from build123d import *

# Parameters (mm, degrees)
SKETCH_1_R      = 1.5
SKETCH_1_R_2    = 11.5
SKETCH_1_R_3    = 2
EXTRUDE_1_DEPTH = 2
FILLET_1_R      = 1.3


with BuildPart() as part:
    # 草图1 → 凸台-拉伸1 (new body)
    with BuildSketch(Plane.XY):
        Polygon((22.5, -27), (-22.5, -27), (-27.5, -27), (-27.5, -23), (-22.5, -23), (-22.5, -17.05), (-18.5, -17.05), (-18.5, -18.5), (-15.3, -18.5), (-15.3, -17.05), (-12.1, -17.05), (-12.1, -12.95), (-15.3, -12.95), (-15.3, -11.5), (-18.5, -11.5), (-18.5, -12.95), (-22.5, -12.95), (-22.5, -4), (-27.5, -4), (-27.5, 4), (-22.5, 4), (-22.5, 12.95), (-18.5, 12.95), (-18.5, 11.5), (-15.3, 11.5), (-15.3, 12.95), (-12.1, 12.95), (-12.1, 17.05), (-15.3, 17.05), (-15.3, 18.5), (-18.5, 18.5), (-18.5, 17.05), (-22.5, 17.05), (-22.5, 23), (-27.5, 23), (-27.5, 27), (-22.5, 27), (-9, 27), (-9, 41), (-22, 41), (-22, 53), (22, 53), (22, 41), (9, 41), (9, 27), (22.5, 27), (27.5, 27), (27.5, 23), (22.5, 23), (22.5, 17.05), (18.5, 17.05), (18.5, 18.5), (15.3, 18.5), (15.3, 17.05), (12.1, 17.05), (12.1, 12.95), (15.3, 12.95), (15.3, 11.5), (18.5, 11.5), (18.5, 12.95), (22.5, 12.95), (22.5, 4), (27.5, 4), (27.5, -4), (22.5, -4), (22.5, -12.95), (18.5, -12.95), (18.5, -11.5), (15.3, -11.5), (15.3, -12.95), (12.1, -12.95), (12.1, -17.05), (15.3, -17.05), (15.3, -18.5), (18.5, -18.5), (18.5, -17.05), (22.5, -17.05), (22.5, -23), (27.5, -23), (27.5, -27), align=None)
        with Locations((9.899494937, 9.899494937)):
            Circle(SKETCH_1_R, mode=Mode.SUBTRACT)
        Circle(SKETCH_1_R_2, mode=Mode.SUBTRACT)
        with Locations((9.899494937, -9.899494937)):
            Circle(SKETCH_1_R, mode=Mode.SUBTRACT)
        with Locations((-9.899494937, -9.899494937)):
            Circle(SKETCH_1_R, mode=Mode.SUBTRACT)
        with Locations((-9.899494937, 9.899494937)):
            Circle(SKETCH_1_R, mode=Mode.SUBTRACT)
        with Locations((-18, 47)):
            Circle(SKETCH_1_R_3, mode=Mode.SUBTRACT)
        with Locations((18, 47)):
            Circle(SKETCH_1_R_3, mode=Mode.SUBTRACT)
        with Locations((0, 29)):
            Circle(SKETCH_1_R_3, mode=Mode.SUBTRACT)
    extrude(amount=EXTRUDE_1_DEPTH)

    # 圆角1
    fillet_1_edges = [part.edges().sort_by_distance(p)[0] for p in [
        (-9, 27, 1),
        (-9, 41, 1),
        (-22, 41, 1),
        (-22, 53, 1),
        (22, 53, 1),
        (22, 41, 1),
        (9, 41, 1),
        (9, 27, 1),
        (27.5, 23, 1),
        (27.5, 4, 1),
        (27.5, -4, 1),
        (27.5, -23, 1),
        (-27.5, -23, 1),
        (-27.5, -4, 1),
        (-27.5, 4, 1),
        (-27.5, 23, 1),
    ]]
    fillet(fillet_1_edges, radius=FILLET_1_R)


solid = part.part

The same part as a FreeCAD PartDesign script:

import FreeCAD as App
import Part
import Sketcher
from FreeCAD import Vector
Q = App.Units.Quantity


def edges_at(feature, points):
    """Names of the edges that pass closest to the given points."""
    edges = feature.Shape.Edges
    near = lambda p: min(range(len(edges)), key=lambda i: edges[i].distToShape(Part.Vertex(*p))[0])
    return sorted({f"Edge{near(p) + 1}" for p in points})

doc = App.newDocument("Part")
body = doc.addObject("PartDesign::Body", "Body")

# Sketch on XY plane
sketch1 = body.newObject("Sketcher::SketchObject", "Sketch")
sketch1.AttachmentSupport = (doc.getObject("XY_Plane"), [""])
sketch1.MapMode = "FlatFace"
sketch1.addGeometry([
    Part.LineSegment(Vector(-27.5, -27, 0), Vector(27.5, -27, 0)),  # 0
    Part.LineSegment(Vector(27.5, -27, 0), Vector(27.5, -23, 0)),  # 1
    Part.LineSegment(Vector(27.5, -23, 0), Vector(22.5, -23, 0)),  # 2
    Part.LineSegment(Vector(22.5, -23, 0), Vector(22.5, -17.1, 0)),  # 3
    Part.LineSegment(Vector(22.5, -17.1, 0), Vector(18.5, -17.1, 0)),  # 4
    Part.LineSegment(Vector(18.5, -17.1, 0), Vector(18.5, -18.5, 0)),  # 5
    Part.LineSegment(Vector(18.5, -18.5, 0), Vector(15.3, -18.5, 0)),  # 6
    Part.LineSegment(Vector(15.3, -18.5, 0), Vector(15.3, -17.1, 0)),  # 7
    Part.LineSegment(Vector(15.3, -17.1, 0), Vector(12.1, -17.1, 0)),  # 8
    Part.LineSegment(Vector(12.1, -17.1, 0), Vector(12.1, -12.9, 0)),  # 9
    Part.LineSegment(Vector(12.1, -12.9, 0), Vector(15.3, -12.9, 0)),  # 10
    Part.LineSegment(Vector(15.3, -12.9, 0), Vector(15.3, -11.5, 0)),  # 11
    Part.LineSegment(Vector(15.3, -11.5, 0), Vector(18.5, -11.5, 0)),  # 12
    Part.LineSegment(Vector(18.5, -11.5, 0), Vector(18.5, -12.9, 0)),  # 13
    Part.LineSegment(Vector(18.5, -12.9, 0), Vector(22.5, -12.9, 0)),  # 14
    Part.LineSegment(Vector(22.5, -12.9, 0), Vector(22.5, -4, 0)),  # 15
    Part.LineSegment(Vector(22.5, -4, 0), Vector(27.5, -4, 0)),  # 16
    Part.LineSegment(Vector(27.5, -4, 0), Vector(27.5, 4, 0)),  # 17
    Part.LineSegment(Vector(27.5, 4, 0), Vector(22.5, 4, 0)),  # 18
    Part.LineSegment(Vector(22.5, 4, 0), Vector(22.5, 12.9, 0)),  # 19
    Part.LineSegment(Vector(22.5, 12.9, 0), Vector(18.5, 12.9, 0)),  # 20
    Part.LineSegment(Vector(18.5, 12.9, 0), Vector(18.5, 11.5, 0)),  # 21
    Part.LineSegment(Vector(18.5, 11.5, 0), Vector(15.3, 11.5, 0)),  # 22
    Part.LineSegment(Vector(15.3, 11.5, 0), Vector(15.3, 12.9, 0)),  # 23
    Part.LineSegment(Vector(15.3, 12.9, 0), Vector(12.1, 12.9, 0)),  # 24
    Part.LineSegment(Vector(12.1, 12.9, 0), Vector(12.1, 17.1, 0)),  # 25
    Part.LineSegment(Vector(12.1, 17.1, 0), Vector(15.3, 17.1, 0)),  # 26
    Part.LineSegment(Vector(15.3, 17.1, 0), Vector(15.3, 18.5, 0)),  # 27
    Part.LineSegment(Vector(15.3, 18.5, 0), Vector(18.5, 18.5, 0)),  # 28
    Part.LineSegment(Vector(18.5, 18.5, 0), Vector(18.5, 17.1, 0)),  # 29
    Part.LineSegment(Vector(18.5, 17.1, 0), Vector(22.5, 17.1, 0)),  # 30
    Part.LineSegment(Vector(22.5, 17.1, 0), Vector(22.5, 23, 0)),  # 31
    Part.LineSegment(Vector(22.5, 23, 0), Vector(27.5, 23, 0)),  # 32
    Part.LineSegment(Vector(27.5, 23, 0), Vector(27.5, 27, 0)),  # 33
    Part.LineSegment(Vector(27.5, 27, 0), Vector(9, 27, 0)),  # 34
    Part.LineSegment(Vector(9, 27, 0), Vector(9, 41, 0)),  # 35
    Part.LineSegment(Vector(9, 41, 0), Vector(22, 41, 0)),  # 36
    Part.LineSegment(Vector(22, 41, 0), Vector(22, 53, 0)),  # 37
    Part.LineSegment(Vector(22, 53, 0), Vector(-22, 53, 0)),  # 38
    Part.LineSegment(Vector(-22, 53, 0), Vector(-22, 41, 0)),  # 39
    Part.LineSegment(Vector(-22, 41, 0), Vector(-9, 41, 0)),  # 40
    Part.LineSegment(Vector(-9, 41, 0), Vector(-9, 27, 0)),  # 41
    Part.LineSegment(Vector(-9, 27, 0), Vector(-27.5, 27, 0)),  # 42
    Part.LineSegment(Vector(-27.5, 27, 0), Vector(-27.5, 23, 0)),  # 43
    Part.LineSegment(Vector(-27.5, 23, 0), Vector(-22.5, 23, 0)),  # 44
    Part.LineSegment(Vector(-22.5, 23, 0), Vector(-22.5, 17.1, 0)),  # 45
    Part.LineSegment(Vector(-22.5, 17.1, 0), Vector(-18.5, 17.1, 0)),  # 46
    Part.LineSegment(Vector(-18.5, 17.1, 0), Vector(-18.5, 18.5, 0)),  # 47
    Part.LineSegment(Vector(-18.5, 18.5, 0), Vector(-15.3, 18.5, 0)),  # 48
    Part.LineSegment(Vector(-15.3, 18.5, 0), Vector(-15.3, 17.1, 0)),  # 49
    Part.LineSegment(Vector(-15.3, 17.1, 0), Vector(-12.1, 17.1, 0)),  # 50
    Part.LineSegment(Vector(-12.1, 17.1, 0), Vector(-12.1, 12.9, 0)),  # 51
    Part.LineSegment(Vector(-12.1, 12.9, 0), Vector(-15.3, 12.9, 0)),  # 52
    Part.LineSegment(Vector(-15.3, 12.9, 0), Vector(-15.3, 11.5, 0)),  # 53
    Part.LineSegment(Vector(-15.3, 11.5, 0), Vector(-18.5, 11.5, 0)),  # 54
    Part.LineSegment(Vector(-18.5, 11.5, 0), Vector(-18.5, 12.9, 0)),  # 55
    Part.LineSegment(Vector(-18.5, 12.9, 0), Vector(-22.5, 12.9, 0)),  # 56
    Part.LineSegment(Vector(-22.5, 12.9, 0), Vector(-22.5, 4, 0)),  # 57
    Part.LineSegment(Vector(-22.5, 4, 0), Vector(-27.5, 4, 0)),  # 58
    Part.LineSegment(Vector(-27.5, 4, 0), Vector(-27.5, -4, 0)),  # 59
    Part.LineSegment(Vector(-27.5, -4, 0), Vector(-22.5, -4, 0)),  # 60
    Part.LineSegment(Vector(-22.5, -4, 0), Vector(-22.5, -12.9, 0)),  # 61
    Part.LineSegment(Vector(-22.5, -12.9, 0), Vector(-18.5, -12.9, 0)),  # 62
    Part.LineSegment(Vector(-18.5, -12.9, 0), Vector(-18.5, -11.5, 0)),  # 63
    Part.LineSegment(Vector(-18.5, -11.5, 0), Vector(-15.3, -11.5, 0)),  # 64
    Part.LineSegment(Vector(-15.3, -11.5, 0), Vector(-15.3, -12.9, 0)),  # 65
    Part.LineSegment(Vector(-15.3, -12.9, 0), Vector(-12.1, -12.9, 0)),  # 66
    Part.LineSegment(Vector(-12.1, -12.9, 0), Vector(-12.1, -17.1, 0)),  # 67
    Part.LineSegment(Vector(-12.1, -17.1, 0), Vector(-15.3, -17.1, 0)),  # 68
    Part.LineSegment(Vector(-15.3, -17.1, 0), Vector(-15.3, -18.5, 0)),  # 69
    Part.LineSegment(Vector(-15.3, -18.5, 0), Vector(-18.5, -18.5, 0)),  # 70
    Part.LineSegment(Vector(-18.5, -18.5, 0), Vector(-18.5, -17.1, 0)),  # 71
    Part.LineSegment(Vector(-18.5, -17.1, 0), Vector(-22.5, -17.1, 0)),  # 72
    Part.LineSegment(Vector(-22.5, -17.1, 0), Vector(-22.5, -23, 0)),  # 73
    Part.LineSegment(Vector(-22.5, -23, 0), Vector(-27.5, -23, 0)),  # 74
    Part.LineSegment(Vector(-27.5, -23, 0), Vector(-27.5, -27, 0)),  # 75
    Part.Circle(Vector(9.9, -9.9, 0), Vector(0, 0, 1), 1.5),  # 76
    Part.Circle(Vector(9.9, 9.9, 0), Vector(0, 0, 1), 1.5),  # 77
    Part.Circle(Vector(-9.9, -9.9, 0), Vector(0, 0, 1), 1.5),  # 78
    Part.Circle(Vector(0, 0, 0), Vector(0, 0, 1), 11.5),  # 79
    Part.Circle(Vector(-9.9, 9.9, 0), Vector(0, 0, 1), 1.5),  # 80
    Part.Circle(Vector(18, 47, 0), Vector(0, 0, 1), 2),  # 81
    Part.Circle(Vector(0, 29, 0), Vector(0, 0, 1), 2),  # 82
    Part.Circle(Vector(-18, 47, 0), Vector(0, 0, 1), 2),  # 83
], False)
sketch1.addConstraint([
    Sketcher.Constraint("Coincident", 0, 2, 1, 1),
    Sketcher.Constraint("Coincident", 1, 2, 2, 1),
    Sketcher.Constraint("Coincident", 2, 2, 3, 1),
    Sketcher.Constraint("Coincident", 3, 2, 4, 1),
    Sketcher.Constraint("Coincident", 4, 2, 5, 1),
    Sketcher.Constraint("Coincident", 5, 2, 6, 1),
    Sketcher.Constraint("Coincident", 6, 2, 7, 1),
    Sketcher.Constraint("Coincident", 7, 2, 8, 1),
    Sketcher.Constraint("Coincident", 8, 2, 9, 1),
    Sketcher.Constraint("Coincident", 9, 2, 10, 1),
    Sketcher.Constraint("Coincident", 10, 2, 11, 1),
    Sketcher.Constraint("Coincident", 11, 2, 12, 1),
    Sketcher.Constraint("Coincident", 12, 2, 13, 1),
    Sketcher.Constraint("Coincident", 13, 2, 14, 1),
    Sketcher.Constraint("Coincident", 14, 2, 15, 1),
    Sketcher.Constraint("Coincident", 15, 2, 16, 1),
    Sketcher.Constraint("Coincident", 16, 2, 17, 1),
    Sketcher.Constraint("Coincident", 17, 2, 18, 1),
    Sketcher.Constraint("Coincident", 18, 2, 19, 1),
    Sketcher.Constraint("Coincident", 19, 2, 20, 1),
    Sketcher.Constraint("Coincident", 20, 2, 21, 1),
    Sketcher.Constraint("Coincident", 21, 2, 22, 1),
    Sketcher.Constraint("Coincident", 22, 2, 23, 1),
    Sketcher.Constraint("Coincident", 23, 2, 24, 1),
    Sketcher.Constraint("Coincident", 24, 2, 25, 1),
    Sketcher.Constraint("Coincident", 25, 2, 26, 1),
    Sketcher.Constraint("Coincident", 26, 2, 27, 1),
    Sketcher.Constraint("Coincident", 27, 2, 28, 1),
    Sketcher.Constraint("Coincident", 28, 2, 29, 1),
    Sketcher.Constraint("Coincident", 29, 2, 30, 1),
    Sketcher.Constraint("Coincident", 30, 2, 31, 1),
    Sketcher.Constraint("Coincident", 31, 2, 32, 1),
    Sketcher.Constraint("Coincident", 32, 2, 33, 1),
    Sketcher.Constraint("Coincident", 33, 2, 34, 1),
    Sketcher.Constraint("Coincident", 34, 2, 35, 1),
    Sketcher.Constraint("Coincident", 35, 2, 36, 1),
    Sketcher.Constraint("Coincident", 36, 2, 37, 1),
    Sketcher.Constraint("Coincident", 37, 2, 38, 1),
    Sketcher.Constraint("Coincident", 38, 2, 39, 1),
    Sketcher.Constraint("Coincident", 39, 2, 40, 1),
    Sketcher.Constraint("Coincident", 40, 2, 41, 1),
    Sketcher.Constraint("Coincident", 41, 2, 42, 1),
    Sketcher.Constraint("Coincident", 42, 2, 43, 1),
    Sketcher.Constraint("Coincident", 43, 2, 44, 1),
    Sketcher.Constraint("Coincident", 44, 2, 45, 1),
    Sketcher.Constraint("Coincident", 45, 2, 46, 1),
    Sketcher.Constraint("Coincident", 46, 2, 47, 1),
    Sketcher.Constraint("Coincident", 47, 2, 48, 1),
    Sketcher.Constraint("Coincident", 48, 2, 49, 1),
    Sketcher.Constraint("Coincident", 49, 2, 50, 1),
    Sketcher.Constraint("Coincident", 50, 2, 51, 1),
    Sketcher.Constraint("Coincident", 51, 2, 52, 1),
    Sketcher.Constraint("Coincident", 52, 2, 53, 1),
    Sketcher.Constraint("Coincident", 53, 2, 54, 1),
    Sketcher.Constraint("Coincident", 54, 2, 55, 1),
    Sketcher.Constraint("Coincident", 55, 2, 56, 1),
    Sketcher.Constraint("Coincident", 56, 2, 57, 1),
    Sketcher.Constraint("Coincident", 57, 2, 58, 1),
    Sketcher.Constraint("Coincident", 58, 2, 59, 1),
    Sketcher.Constraint("Coincident", 59, 2, 60, 1),
    Sketcher.Constraint("Coincident", 60, 2, 61, 1),
    Sketcher.Constraint("Coincident", 61, 2, 62, 1),
    Sketcher.Constraint("Coincident", 62, 2, 63, 1),
    Sketcher.Constraint("Coincident", 63, 2, 64, 1),
    Sketcher.Constraint("Coincident", 64, 2, 65, 1),
    Sketcher.Constraint("Coincident", 65, 2, 66, 1),
    Sketcher.Constraint("Coincident", 66, 2, 67, 1),
    Sketcher.Constraint("Coincident", 67, 2, 68, 1),
    Sketcher.Constraint("Coincident", 68, 2, 69, 1),
    Sketcher.Constraint("Coincident", 69, 2, 70, 1),
    Sketcher.Constraint("Coincident", 70, 2, 71, 1),
    Sketcher.Constraint("Coincident", 71, 2, 72, 1),
    Sketcher.Constraint("Coincident", 72, 2, 73, 1),
    Sketcher.Constraint("Coincident", 73, 2, 74, 1),
    Sketcher.Constraint("Coincident", 74, 2, 75, 1),
    Sketcher.Constraint("Coincident", 75, 2, 0, 1),
    Sketcher.Constraint("Horizontal", 0),
    Sketcher.Constraint("Vertical", 1),
    Sketcher.Constraint("Horizontal", 2),
    Sketcher.Constraint("Vertical", 3),
    Sketcher.Constraint("Horizontal", 4),
    Sketcher.Constraint("Vertical", 5),
    Sketcher.Constraint("Horizontal", 6),
    Sketcher.Constraint("Vertical", 7),
    Sketcher.Constraint("Horizontal", 8),
    Sketcher.Constraint("Vertical", 9),
    Sketcher.Constraint("Horizontal", 10),
    Sketcher.Constraint("Vertical", 11),
    Sketcher.Constraint("Horizontal", 12),
    Sketcher.Constraint("Vertical", 13),
    Sketcher.Constraint("Horizontal", 14),
    Sketcher.Constraint("Vertical", 15),
    Sketcher.Constraint("Horizontal", 16),
    Sketcher.Constraint("Vertical", 17),
    Sketcher.Constraint("Horizontal", 18),
    Sketcher.Constraint("Vertical", 19),
    Sketcher.Constraint("Horizontal", 20),
    Sketcher.Constraint("Vertical", 21),
    Sketcher.Constraint("Horizontal", 22),
    Sketcher.Constraint("Vertical", 23),
    Sketcher.Constraint("Horizontal", 24),
    Sketcher.Constraint("Vertical", 25),
    Sketcher.Constraint("Horizontal", 26),
    Sketcher.Constraint("Vertical", 27),
    Sketcher.Constraint("Horizontal", 28),
    Sketcher.Constraint("Vertical", 29),
    Sketcher.Constraint("Horizontal", 30),
    Sketcher.Constraint("Vertical", 31),
    Sketcher.Constraint("Horizontal", 32),
    Sketcher.Constraint("Vertical", 33),
    Sketcher.Constraint("Horizontal", 34),
    Sketcher.Constraint("Vertical", 35),
    Sketcher.Constraint("Horizontal", 36),
    Sketcher.Constraint("Vertical", 37),
    Sketcher.Constraint("Horizontal", 38),
    Sketcher.Constraint("Vertical", 39),
    Sketcher.Constraint("Horizontal", 40),
    Sketcher.Constraint("Vertical", 41),
    Sketcher.Constraint("Horizontal", 42),
    Sketcher.Constraint("Vertical", 43),
    Sketcher.Constraint("Horizontal", 44),
    Sketcher.Constraint("Vertical", 45),
    Sketcher.Constraint("Horizontal", 46),
    Sketcher.Constraint("Vertical", 47),
    Sketcher.Constraint("Horizontal", 48),
    Sketcher.Constraint("Vertical", 49),
    Sketcher.Constraint("Horizontal", 50),
    Sketcher.Constraint("Vertical", 51),
    Sketcher.Constraint("Horizontal", 52),
    Sketcher.Constraint("Vertical", 53),
    Sketcher.Constraint("Horizontal", 54),
    Sketcher.Constraint("Vertical", 55),
    Sketcher.Constraint("Horizontal", 56),
    Sketcher.Constraint("Vertical", 57),
    Sketcher.Constraint("Horizontal", 58),
    Sketcher.Constraint("Vertical", 59),
    Sketcher.Constraint("Horizontal", 60),
    Sketcher.Constraint("Vertical", 61),
    Sketcher.Constraint("Horizontal", 62),
    Sketcher.Constraint("Vertical", 63),
    Sketcher.Constraint("Horizontal", 64),
    Sketcher.Constraint("Vertical", 65),
    Sketcher.Constraint("Horizontal", 66),
    Sketcher.Constraint("Vertical", 67),
    Sketcher.Constraint("Horizontal", 68),
    Sketcher.Constraint("Vertical", 69),
    Sketcher.Constraint("Horizontal", 70),
    Sketcher.Constraint("Vertical", 71),
    Sketcher.Constraint("Horizontal", 72),
    Sketcher.Constraint("Vertical", 73),
    Sketcher.Constraint("Horizontal", 74),
    Sketcher.Constraint("Vertical", 75),
    Sketcher.Constraint("Coincident", 79, 3, -1, 1),
    Sketcher.Constraint("Equal", 76, 77),
    Sketcher.Constraint("Equal", 77, 78),
    Sketcher.Constraint("Equal", 78, 80),
    Sketcher.Constraint("Equal", 81, 82),
    Sketcher.Constraint("Equal", 82, 83),
    Sketcher.Constraint("Symmetric", 77, 3, 78, 3, -1, 1),
    Sketcher.Constraint("Symmetric", 76, 3, 80, 3, -1, 1),
    Sketcher.Constraint("Symmetric", 0, 2, 42, 2, -1, 1),
    Sketcher.Constraint("Symmetric", 2, 2, 44, 2, -1, 1),
    Sketcher.Constraint("Symmetric", 4, 2, 46, 2, -1, 1),
    Sketcher.Constraint("Symmetric", 6, 2, 48, 2, -1, 1),
    Sketcher.Constraint("Symmetric", 8, 2, 50, 2, -1, 1),
    Sketcher.Constraint("Symmetric", 10, 2, 52, 2, -1, 1),
    Sketcher.Constraint("Symmetric", 12, 2, 54, 2, -1, 1),
    Sketcher.Constraint("Symmetric", 14, 2, 56, 2, -1, 1),
    Sketcher.Constraint("Symmetric", 16, 2, 58, 2, -1, 1),
    Sketcher.Constraint("Symmetric", 18, 2, 60, 2, -1, 1),
    Sketcher.Constraint("Symmetric", 20, 2, 62, 2, -1, 1),
    Sketcher.Constraint("Symmetric", 22, 2, 64, 2, -1, 1),
    Sketcher.Constraint("Symmetric", 24, 2, 66, 2, -1, 1),
    Sketcher.Constraint("Symmetric", 26, 2, 68, 2, -1, 1),
    Sketcher.Constraint("Symmetric", 28, 2, 70, 2, -1, 1),
    Sketcher.Constraint("Symmetric", 30, 2, 72, 2, -1, 1),
    Sketcher.Constraint("Symmetric", 32, 2, 74, 2, -1, 1),
    Sketcher.Constraint("Symmetric", 76, 3, 78, 3, -2),
    Sketcher.Constraint("Symmetric", 81, 3, 83, 3, -2),
    Sketcher.Constraint("Symmetric", 36, 2, 39, 2, -2),
    Sketcher.Constraint("Symmetric", 34, 2, 41, 2, -2),
    Sketcher.Constraint("Symmetric", 32, 2, 43, 2, -2),
    Sketcher.Constraint("Symmetric", 30, 2, 45, 2, -2),
    Sketcher.Constraint("Symmetric", 28, 2, 47, 2, -2),
    Sketcher.Constraint("Symmetric", 26, 2, 49, 2, -2),
    Sketcher.Constraint("Symmetric", 24, 2, 51, 2, -2),
    Sketcher.Constraint("Symmetric", 22, 2, 53, 2, -2),
    Sketcher.Constraint("Symmetric", 20, 2, 55, 2, -2),
    Sketcher.Constraint("Symmetric", 18, 2, 57, 2, -2),
    Sketcher.Constraint("PointOnObject", 82, 3, -2),
    Sketcher.Constraint("Horizontal", 4, 2, 7, 2),
    Sketcher.Constraint("Horizontal", 10, 2, 13, 2),
    Sketcher.Constraint("Vertical", 7, 2, 10, 2),
    Sketcher.Constraint("Vertical", 5, 2, 12, 2),
    Sketcher.Constraint("Vertical", 3, 2, 14, 2),
    Sketcher.Constraint("Vertical", 1, 2, 16, 2),
    Sketcher.Constraint("Equal", 6, 8),
    Sketcher.Constraint("Equal", 72, 1),
    Sketcher.Constraint("Equal", 7, 11),
    Sketcher.Constraint("Diameter", 76, Q("3 mm")),
    Sketcher.Constraint("Diameter", 79, Q("23 mm")),
    Sketcher.Constraint("Diameter", 81, Q("4 mm")),
    Sketcher.Constraint("DistanceX", 0, 1, 0, 2, Q("55 mm")),
    Sketcher.Constraint("DistanceX", 2, 2, 2, 1, Q("5 mm")),
    Sketcher.Constraint("DistanceX", 4, 2, 4, 1, Q("4 mm")),
    Sketcher.Constraint("DistanceX", 36, 1, 36, 2, Q("13 mm")),
    Sketcher.Constraint("DistanceX", 38, 2, 38, 1, Q("44 mm")),
    Sketcher.Constraint("DistanceY", 17, 1, 17, 2, Q("8 mm")),
    Sketcher.Constraint("DistanceY", 35, 1, 35, 2, Q("14 mm")),
    Sketcher.Constraint("DistanceY", 37, 1, 37, 2, Q("12 mm")),
    Sketcher.Constraint("DistanceX", 6, 2, 6, 1, Q("3.2 mm")),
    Sketcher.Constraint("DistanceY", 9, 1, 9, 2, Q("4.1 mm")),
    Sketcher.Constraint("DistanceX", -1, 1, 81, 3, Q("18 mm")),
    Sketcher.Constraint("DistanceY", -1, 1, 81, 3, Q("47 mm")),
    Sketcher.Constraint("DistanceY", -1, 1, 82, 3, Q("29 mm")),
    Sketcher.Constraint("DistanceY", 0, 2, -1, 1, Q("27 mm")),
    Sketcher.Constraint("DistanceY", 3, 1, 3, 2, Q("5.95 mm")),
    Sketcher.Constraint("DistanceY", 5, 2, 5, 1, Q("1.45 mm")),
    Sketcher.Constraint("DistanceX", -1, 1, 76, 3, Q("9.899495 mm")),
    Sketcher.Constraint("DistanceY", 76, 3, -1, 1, Q("9.899495 mm")),
])
pad1 = body.newObject("PartDesign::Pad", "Pad")
pad1.Profile = sketch1
pad1.Length = 2
doc.recompute()

fillet = body.newObject("PartDesign::Fillet", "Fillet")
fillet.Base = (pad1, edges_at(pad1, [
    (-9, 27, 1),
    (-9, 41, 1),
    (-22, 41, 1),
    (-22, 53, 1),
    (22, 53, 1),
    (22, 41, 1),
    (9, 41, 1),
    (9, 27, 1),
    (27.5, 23, 1),
    (27.5, 4, 1),
    (27.5, -4, 1),
    (27.5, -23, 1),
    (-27.5, -23, 1),
    (-27.5, -4, 1),
    (-27.5, 4, 1),
    (-27.5, 23, 1),
]))
fillet.Radius = 1.3

doc.recompute()
